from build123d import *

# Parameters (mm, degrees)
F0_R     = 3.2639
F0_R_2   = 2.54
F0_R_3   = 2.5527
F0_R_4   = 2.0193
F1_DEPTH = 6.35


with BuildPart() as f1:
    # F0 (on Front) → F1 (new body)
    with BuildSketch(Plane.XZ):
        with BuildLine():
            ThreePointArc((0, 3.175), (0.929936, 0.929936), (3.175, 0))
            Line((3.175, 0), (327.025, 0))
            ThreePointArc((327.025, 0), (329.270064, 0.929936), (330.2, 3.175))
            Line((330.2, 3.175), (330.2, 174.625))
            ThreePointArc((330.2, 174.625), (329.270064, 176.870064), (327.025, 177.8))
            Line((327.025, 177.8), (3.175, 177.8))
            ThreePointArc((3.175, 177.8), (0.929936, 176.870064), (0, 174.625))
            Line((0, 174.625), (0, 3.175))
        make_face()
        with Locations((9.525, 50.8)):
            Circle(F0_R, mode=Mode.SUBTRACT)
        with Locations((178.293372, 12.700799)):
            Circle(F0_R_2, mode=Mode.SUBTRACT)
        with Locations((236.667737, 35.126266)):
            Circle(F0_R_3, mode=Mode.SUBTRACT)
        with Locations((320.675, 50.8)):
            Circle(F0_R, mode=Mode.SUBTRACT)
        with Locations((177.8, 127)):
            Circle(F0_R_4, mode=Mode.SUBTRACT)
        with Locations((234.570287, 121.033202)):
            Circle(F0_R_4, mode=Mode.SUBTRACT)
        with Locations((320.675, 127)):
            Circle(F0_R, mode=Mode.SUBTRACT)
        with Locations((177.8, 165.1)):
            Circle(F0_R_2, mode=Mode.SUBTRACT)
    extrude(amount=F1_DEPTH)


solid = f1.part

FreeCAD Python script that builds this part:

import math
import FreeCAD as App
import Part
import Sketcher

V = App.Vector
Q = App.Units.Quantity

doc = App.newDocument("Part")
params = doc.addObject("Spreadsheet::Sheet", "Params")
for row, (alias, value) in enumerate([
    ("sketch1_diameter", "0.2 in"),
    ("sketch1_diameter2", "0.257 in"),
    ("sketch1_diameter3", "0.201 in"),
    ("sketch1_diameter4", "0.159 in"),
    ("sketch1_radius", "0.125 in"),
    ("pad1_length", "0.25 in"),
], start=1):
    params.set(f"A{row}", alias)
    params.set(f"B{row}", "=" + value)
    params.setAlias(f"B{row}", alias)

body = doc.addObject("PartDesign::Body", "Body")

sketch1 = doc.addObject("Sketcher::SketchObject", "Sketch")
body.addObject(sketch1)
sketch1.AttachmentSupport = (doc.XZ_Plane, [""])
sketch1.MapMode = "FlatFace"
sketch1.addGeometry([
    Part.ArcOfCircle(Part.Circle(V(3.2, 3.2, 0), V(0, 0, 1), 3.2), math.radians(-180), math.radians(-90)),
    Part.LineSegment(V(3.2, 0, 0), V(327, 0, 0)),
    Part.ArcOfCircle(Part.Circle(V(327, 3.2, 0), V(0, 0, 1), 3.2), math.radians(-90), math.radians(0)),
    Part.LineSegment(V(330.2, 3.2, 0), V(330.2, 174.6, 0)),
    Part.ArcOfCircle(Part.Circle(V(327, 174.6, 0), V(0, 0, 1), 3.2), math.radians(0), math.radians(90)),
    Part.LineSegment(V(327, 177.8, 0), V(3.2, 177.8, 0)),
    Part.ArcOfCircle(Part.Circle(V(3.2, 174.6, 0), V(0, 0, 1), 3.2), math.radians(90), math.radians(180)),
    Part.LineSegment(V(0, 174.6, 0), V(0, 3.2, 0)),
    Part.Circle(V(9.5, 50.8, 0), V(0, 0, 1), 3.3),
    Part.Circle(V(178.3, 12.7, 0), V(0, 0, 1), 2.5),
    Part.Circle(V(236.7, 35.1, 0), V(0, 0, 1), 2.6),
    Part.Circle(V(320.7, 50.8, 0), V(0, 0, 1), 3.3),
    Part.Circle(V(177.8, 127, 0), V(0, 0, 1), 2),
    Part.Circle(V(234.6, 121, 0), V(0, 0, 1), 2),
    Part.Circle(V(320.7, 127, 0), V(0, 0, 1), 3.3),
    Part.Circle(V(177.8, 165.1, 0), V(0, 0, 1), 2.5),
], False)
sketch1.addConstraint([
    Sketcher.Constraint("Tangent", 0, 2, 1, 1),
    Sketcher.Constraint("Tangent", 1, 2, 2, 1),
    Sketcher.Constraint("Tangent", 2, 2, 3, 1),
    Sketcher.Constraint("Tangent", 3, 2, 4, 1),
    Sketcher.Constraint("Tangent", 4, 2, 5, 1),
    Sketcher.Constraint("Tangent", 5, 2, 6, 1),
    Sketcher.Constraint("Tangent", 6, 2, 7, 1),
    Sketcher.Constraint("Tangent", 7, 2, 0, 1),
    Sketcher.Constraint("Horizontal", 1),
    Sketcher.Constraint("Vertical", 3),
    Sketcher.Constraint("Horizontal", 5),
    Sketcher.Constraint("Vertical", 7),
    Sketcher.Constraint("Equal", 0, 2),
    Sketcher.Constraint("Equal", 2, 4),
    Sketcher.Constraint("Equal", 4, 6),
    Sketcher.Constraint("Equal", 8, 11),
    Sketcher.Constraint("Equal", 12, 13),
    Sketcher.Constraint("Equal", 11, 14),
    Sketcher.Constraint("Equal", 9, 15),
    Sketcher.Constraint("PointOnObject", 0, 2, -1),
    Sketcher.Constraint("PointOnObject", 6, 2, -2),
    Sketcher.Constraint("Horizontal", 8, 3, 11, 3),
    Sketcher.Constraint("Horizontal", 12, 3, 14, 3),
    Sketcher.Constraint("Vertical", 11, 3, 14, 3),
    Sketcher.Constraint("Vertical", 12, 3, 15, 3),
    Sketcher.Constraint("Diameter", 9, Q("0.2 in")),
    Sketcher.Constraint("Diameter", 8, Q("0.257 in")),
    Sketcher.Constraint("Diameter", 10, Q("0.201 in")),
    Sketcher.Constraint("Diameter", 12, Q("0.159 in")),
    Sketcher.Constraint("DistanceY", -1, 1, 8, 3, Q("2 in")),
    Sketcher.Constraint("DistanceX", -1, 1, 12, 3, Q("7 in")),
    Sketcher.Constraint("DistanceY", -1, 1, 12, 3, Q("5 in")),
    Sketcher.Constraint("DistanceX", -1, 1, 2, 2, Q("13 in")),
    Sketcher.Constraint("DistanceY", -1, 1, 4, 2, Q("7 in")),
    Sketcher.Constraint("Radius", 0, Q("0.125 in")),
    Sketcher.Constraint("DistanceY", -1, 1, 15, 3, Q("6.5 in")),
    Sketcher.Constraint("DistanceX", 8, 3, 2, 3, Q("12.5 in")),
    Sketcher.Constraint("DistanceX", 11, 3, 2, 3, Q("0.25 in")),
    Sketcher.Constraint("DistanceY", -1, 1, 9, 3, Q("12.700799 mm")),
    Sketcher.Constraint("DistanceY", 13, 3, 4, 2, Q("56.766798 mm")),
    Sketcher.Constraint("DistanceX", -1, 1, 9, 3, Q("178.293372 mm")),
    Sketcher.Constraint("DistanceX", 13, 3, 10, 3, Q("2.09745 mm")),
    Sketcher.Constraint("DistanceX", -1, 1, 10, 3, Q("236.667737 mm")),
    Sketcher.Constraint("DistanceY", -1, 1, 10, 3, Q("35.126266 mm")),
])
sketch1.setExpression("Constraints[25]", "Params.sketch1_diameter")
sketch1.setExpression("Constraints[26]", "Params.sketch1_diameter2")
sketch1.setExpression("Constraints[27]", "Params.sketch1_diameter3")
sketch1.setExpression("Constraints[28]", "Params.sketch1_diameter4")
sketch1.setExpression("Constraints[34]", "Params.sketch1_radius")
pad1 = doc.addObject("PartDesign::Pad", "Pad")
body.addObject(pad1)
pad1.Profile = sketch1
pad1.setExpression("Length", "Params.pad1_length")

doc.recompute()
